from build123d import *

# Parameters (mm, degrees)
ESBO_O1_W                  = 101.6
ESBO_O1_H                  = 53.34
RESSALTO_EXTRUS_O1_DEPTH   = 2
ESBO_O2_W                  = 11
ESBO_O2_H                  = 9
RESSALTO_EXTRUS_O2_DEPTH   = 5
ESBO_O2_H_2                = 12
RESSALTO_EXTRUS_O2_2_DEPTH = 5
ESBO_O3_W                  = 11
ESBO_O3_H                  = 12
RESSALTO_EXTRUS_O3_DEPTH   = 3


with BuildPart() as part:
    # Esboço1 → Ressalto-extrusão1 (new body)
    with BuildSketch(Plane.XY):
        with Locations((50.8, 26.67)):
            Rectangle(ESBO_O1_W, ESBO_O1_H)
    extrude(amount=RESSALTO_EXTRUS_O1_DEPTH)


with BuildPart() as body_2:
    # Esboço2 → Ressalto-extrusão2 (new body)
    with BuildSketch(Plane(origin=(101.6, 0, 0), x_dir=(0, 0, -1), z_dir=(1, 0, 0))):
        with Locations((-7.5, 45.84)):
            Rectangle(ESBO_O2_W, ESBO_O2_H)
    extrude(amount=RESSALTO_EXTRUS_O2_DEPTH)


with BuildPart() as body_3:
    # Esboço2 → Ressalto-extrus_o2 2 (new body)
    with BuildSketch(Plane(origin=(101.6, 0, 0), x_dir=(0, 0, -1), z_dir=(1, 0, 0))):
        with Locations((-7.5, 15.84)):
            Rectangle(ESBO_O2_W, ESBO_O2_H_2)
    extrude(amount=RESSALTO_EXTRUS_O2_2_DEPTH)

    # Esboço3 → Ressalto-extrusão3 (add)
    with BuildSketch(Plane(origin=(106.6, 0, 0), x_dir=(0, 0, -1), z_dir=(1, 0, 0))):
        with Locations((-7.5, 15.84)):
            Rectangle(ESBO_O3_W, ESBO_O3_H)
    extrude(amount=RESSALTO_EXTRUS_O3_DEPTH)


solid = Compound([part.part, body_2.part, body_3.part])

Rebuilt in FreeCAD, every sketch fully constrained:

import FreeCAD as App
import Part
import Sketcher

V = App.Vector


def add_polygon(sketch, points):
    """Adds a closed chain of lines whose ends are joined by coincident constraints."""
    first, n = sketch.GeometryCount, len(points)
    for a, b in zip(points, points[1:] + points[:1]):
        sketch.addGeometry(Part.LineSegment(App.Vector(*a, 0), App.Vector(*b, 0)), False)
    for i in range(n):
        sketch.addConstraint(Sketcher.Constraint("Coincident", first + i, 2, first + (i + 1) % n, 1))

doc = App.newDocument("Part")
body = doc.addObject("PartDesign::Body", "Body")

sketch1 = body.newObject("Sketcher::SketchObject", "Sketch")
sketch1.AttachmentSupport = (doc.getObject("XY_Plane"), [""])
sketch1.MapMode = "FlatFace"
add_polygon(sketch1, [(0, 53.34), (0, 0), (101.6, 0), (101.6, 53.34)])
sketch1.addConstraint(Sketcher.Constraint("Vertical", 0))
sketch1.addConstraint(Sketcher.Constraint("Horizontal", 1))
sketch1.addConstraint(Sketcher.Constraint("Vertical", 2))
sketch1.addConstraint(Sketcher.Constraint("Horizontal", 3))
sketch1.addConstraint(Sketcher.Constraint("Coincident", 0, 2, -1, 1))
sketch1.addConstraint(Sketcher.Constraint("DistanceX", 1, 1, 1, 2, 101.6))
sketch1.addConstraint(Sketcher.Constraint("DistanceY", 0, 2, 0, 1, 53.34))
pad1 = body.newObject("PartDesign::Pad", "Pad")
pad1.Profile = sketch1
pad1.Length = 2
body2 = doc.addObject("PartDesign::Body", "Body001")

sketch2 = body2.newObject("Sketcher::SketchObject", "Sketch001")
sketch2.AttachmentSupport = (doc.getObject("YZ_Plane001"), [""])
sketch2.MapMode = "FlatFace"
sketch2.AttachmentOffset = App.Placement(V(0, 0, 101.6), App.Rotation())
add_polygon(sketch2, [(50.34, 13), (41.34, 13), (41.34, 2), (50.34, 2)])
sketch2.addConstraint(Sketcher.Constraint("Horizontal", 0))
sketch2.addConstraint(Sketcher.Constraint("Vertical", 1))
sketch2.addConstraint(Sketcher.Constraint("Horizontal", 2))
sketch2.addConstraint(Sketcher.Constraint("Vertical", 3))
sketch2.addConstraint(Sketcher.Constraint("DistanceX", 0, 2, 0, 1, 9.0))
sketch2.addConstraint(Sketcher.Constraint("DistanceY", 1, 2, 1, 1, 11.0))
sketch2.addConstraint(Sketcher.Constraint("DistanceY", -1, 1, 0, 2, 13.0))
sketch2.addConstraint(Sketcher.Constraint("DistanceX", -1, 1, 0, 2, 41.34))
pad2 = body2.newObject("PartDesign::Pad", "Pad001")
pad2.Profile = sketch2
pad2.Length = 5
body3 = doc.addObject("PartDesign::Body", "Body002")

sketch3 = body3.newObject("Sketcher::SketchObject", "Sketch002")
sketch3.AttachmentSupport = (doc.getObject("YZ_Plane002"), [""])
sketch3.MapMode = "FlatFace"
sketch3.AttachmentOffset = App.Placement(V(0, 0, 101.6), App.Rotation())
add_polygon(sketch3, [(21.84, 13), (9.84, 13), (9.84, 2), (21.84, 2)])
sketch3.addConstraint(Sketcher.Constraint("Horizontal", 0))
sketch3.addConstraint(Sketcher.Constraint("Vertical", 1))
sketch3.addConstraint(Sketcher.Constraint("Horizontal", 2))
sketch3.addConstraint(Sketcher.Constraint("Vertical", 3))
sketch3.addConstraint(Sketcher.Constraint("DistanceX", 0, 2, 0, 1, 12.0))
sketch3.addConstraint(Sketcher.Constraint("DistanceY", 1, 2, 1, 1, 11.0))
sketch3.addConstraint(Sketcher.Constraint("DistanceY", -1, 1, 0, 2, 13.0))
sketch3.addConstraint(Sketcher.Constraint("DistanceX", -1, 1, 0, 2, 9.84))
pad3 = body3.newObject("PartDesign::Pad", "Pad002")
pad3.Profile = sketch3
pad3.Length = 5

sketch4 = body3.newObject("Sketcher::SketchObject", "Sketch003")
sketch4.AttachmentSupport = (doc.getObject("YZ_Plane002"), [""])
sketch4.MapMode = "FlatFace"
sketch4.AttachmentOffset = App.Placement(V(0, 0, 106.6), App.Rotation())
add_polygon(sketch4, [(21.84, 13), (9.84, 13), (9.84, 2), (21.84, 2)])
sketch4.addConstraint(Sketcher.Constraint("Horizontal", 0))
sketch4.addConstraint(Sketcher.Constraint("Vertical", 1))
sketch4.addConstraint(Sketcher.Constraint("Horizontal", 2))
sketch4.addConstraint(Sketcher.Constraint("Vertical", 3))
sketch4.addConstraint(Sketcher.Constraint("DistanceX", 0, 2, 0, 1, 12.0))
sketch4.addConstraint(Sketcher.Constraint("DistanceY", 1, 2, 1, 1, 11.0))
sketch4.addConstraint(Sketcher.Constraint("DistanceY", -1, 1, 0, 2, 13.0))
sketch4.addConstraint(Sketcher.Constraint("DistanceX", -1, 1, 0, 2, 9.84))
pad4 = body3.newObject("PartDesign::Pad", "Pad003")
pad4.Profile = sketch4
pad4.Length = 3

doc.recompute()
